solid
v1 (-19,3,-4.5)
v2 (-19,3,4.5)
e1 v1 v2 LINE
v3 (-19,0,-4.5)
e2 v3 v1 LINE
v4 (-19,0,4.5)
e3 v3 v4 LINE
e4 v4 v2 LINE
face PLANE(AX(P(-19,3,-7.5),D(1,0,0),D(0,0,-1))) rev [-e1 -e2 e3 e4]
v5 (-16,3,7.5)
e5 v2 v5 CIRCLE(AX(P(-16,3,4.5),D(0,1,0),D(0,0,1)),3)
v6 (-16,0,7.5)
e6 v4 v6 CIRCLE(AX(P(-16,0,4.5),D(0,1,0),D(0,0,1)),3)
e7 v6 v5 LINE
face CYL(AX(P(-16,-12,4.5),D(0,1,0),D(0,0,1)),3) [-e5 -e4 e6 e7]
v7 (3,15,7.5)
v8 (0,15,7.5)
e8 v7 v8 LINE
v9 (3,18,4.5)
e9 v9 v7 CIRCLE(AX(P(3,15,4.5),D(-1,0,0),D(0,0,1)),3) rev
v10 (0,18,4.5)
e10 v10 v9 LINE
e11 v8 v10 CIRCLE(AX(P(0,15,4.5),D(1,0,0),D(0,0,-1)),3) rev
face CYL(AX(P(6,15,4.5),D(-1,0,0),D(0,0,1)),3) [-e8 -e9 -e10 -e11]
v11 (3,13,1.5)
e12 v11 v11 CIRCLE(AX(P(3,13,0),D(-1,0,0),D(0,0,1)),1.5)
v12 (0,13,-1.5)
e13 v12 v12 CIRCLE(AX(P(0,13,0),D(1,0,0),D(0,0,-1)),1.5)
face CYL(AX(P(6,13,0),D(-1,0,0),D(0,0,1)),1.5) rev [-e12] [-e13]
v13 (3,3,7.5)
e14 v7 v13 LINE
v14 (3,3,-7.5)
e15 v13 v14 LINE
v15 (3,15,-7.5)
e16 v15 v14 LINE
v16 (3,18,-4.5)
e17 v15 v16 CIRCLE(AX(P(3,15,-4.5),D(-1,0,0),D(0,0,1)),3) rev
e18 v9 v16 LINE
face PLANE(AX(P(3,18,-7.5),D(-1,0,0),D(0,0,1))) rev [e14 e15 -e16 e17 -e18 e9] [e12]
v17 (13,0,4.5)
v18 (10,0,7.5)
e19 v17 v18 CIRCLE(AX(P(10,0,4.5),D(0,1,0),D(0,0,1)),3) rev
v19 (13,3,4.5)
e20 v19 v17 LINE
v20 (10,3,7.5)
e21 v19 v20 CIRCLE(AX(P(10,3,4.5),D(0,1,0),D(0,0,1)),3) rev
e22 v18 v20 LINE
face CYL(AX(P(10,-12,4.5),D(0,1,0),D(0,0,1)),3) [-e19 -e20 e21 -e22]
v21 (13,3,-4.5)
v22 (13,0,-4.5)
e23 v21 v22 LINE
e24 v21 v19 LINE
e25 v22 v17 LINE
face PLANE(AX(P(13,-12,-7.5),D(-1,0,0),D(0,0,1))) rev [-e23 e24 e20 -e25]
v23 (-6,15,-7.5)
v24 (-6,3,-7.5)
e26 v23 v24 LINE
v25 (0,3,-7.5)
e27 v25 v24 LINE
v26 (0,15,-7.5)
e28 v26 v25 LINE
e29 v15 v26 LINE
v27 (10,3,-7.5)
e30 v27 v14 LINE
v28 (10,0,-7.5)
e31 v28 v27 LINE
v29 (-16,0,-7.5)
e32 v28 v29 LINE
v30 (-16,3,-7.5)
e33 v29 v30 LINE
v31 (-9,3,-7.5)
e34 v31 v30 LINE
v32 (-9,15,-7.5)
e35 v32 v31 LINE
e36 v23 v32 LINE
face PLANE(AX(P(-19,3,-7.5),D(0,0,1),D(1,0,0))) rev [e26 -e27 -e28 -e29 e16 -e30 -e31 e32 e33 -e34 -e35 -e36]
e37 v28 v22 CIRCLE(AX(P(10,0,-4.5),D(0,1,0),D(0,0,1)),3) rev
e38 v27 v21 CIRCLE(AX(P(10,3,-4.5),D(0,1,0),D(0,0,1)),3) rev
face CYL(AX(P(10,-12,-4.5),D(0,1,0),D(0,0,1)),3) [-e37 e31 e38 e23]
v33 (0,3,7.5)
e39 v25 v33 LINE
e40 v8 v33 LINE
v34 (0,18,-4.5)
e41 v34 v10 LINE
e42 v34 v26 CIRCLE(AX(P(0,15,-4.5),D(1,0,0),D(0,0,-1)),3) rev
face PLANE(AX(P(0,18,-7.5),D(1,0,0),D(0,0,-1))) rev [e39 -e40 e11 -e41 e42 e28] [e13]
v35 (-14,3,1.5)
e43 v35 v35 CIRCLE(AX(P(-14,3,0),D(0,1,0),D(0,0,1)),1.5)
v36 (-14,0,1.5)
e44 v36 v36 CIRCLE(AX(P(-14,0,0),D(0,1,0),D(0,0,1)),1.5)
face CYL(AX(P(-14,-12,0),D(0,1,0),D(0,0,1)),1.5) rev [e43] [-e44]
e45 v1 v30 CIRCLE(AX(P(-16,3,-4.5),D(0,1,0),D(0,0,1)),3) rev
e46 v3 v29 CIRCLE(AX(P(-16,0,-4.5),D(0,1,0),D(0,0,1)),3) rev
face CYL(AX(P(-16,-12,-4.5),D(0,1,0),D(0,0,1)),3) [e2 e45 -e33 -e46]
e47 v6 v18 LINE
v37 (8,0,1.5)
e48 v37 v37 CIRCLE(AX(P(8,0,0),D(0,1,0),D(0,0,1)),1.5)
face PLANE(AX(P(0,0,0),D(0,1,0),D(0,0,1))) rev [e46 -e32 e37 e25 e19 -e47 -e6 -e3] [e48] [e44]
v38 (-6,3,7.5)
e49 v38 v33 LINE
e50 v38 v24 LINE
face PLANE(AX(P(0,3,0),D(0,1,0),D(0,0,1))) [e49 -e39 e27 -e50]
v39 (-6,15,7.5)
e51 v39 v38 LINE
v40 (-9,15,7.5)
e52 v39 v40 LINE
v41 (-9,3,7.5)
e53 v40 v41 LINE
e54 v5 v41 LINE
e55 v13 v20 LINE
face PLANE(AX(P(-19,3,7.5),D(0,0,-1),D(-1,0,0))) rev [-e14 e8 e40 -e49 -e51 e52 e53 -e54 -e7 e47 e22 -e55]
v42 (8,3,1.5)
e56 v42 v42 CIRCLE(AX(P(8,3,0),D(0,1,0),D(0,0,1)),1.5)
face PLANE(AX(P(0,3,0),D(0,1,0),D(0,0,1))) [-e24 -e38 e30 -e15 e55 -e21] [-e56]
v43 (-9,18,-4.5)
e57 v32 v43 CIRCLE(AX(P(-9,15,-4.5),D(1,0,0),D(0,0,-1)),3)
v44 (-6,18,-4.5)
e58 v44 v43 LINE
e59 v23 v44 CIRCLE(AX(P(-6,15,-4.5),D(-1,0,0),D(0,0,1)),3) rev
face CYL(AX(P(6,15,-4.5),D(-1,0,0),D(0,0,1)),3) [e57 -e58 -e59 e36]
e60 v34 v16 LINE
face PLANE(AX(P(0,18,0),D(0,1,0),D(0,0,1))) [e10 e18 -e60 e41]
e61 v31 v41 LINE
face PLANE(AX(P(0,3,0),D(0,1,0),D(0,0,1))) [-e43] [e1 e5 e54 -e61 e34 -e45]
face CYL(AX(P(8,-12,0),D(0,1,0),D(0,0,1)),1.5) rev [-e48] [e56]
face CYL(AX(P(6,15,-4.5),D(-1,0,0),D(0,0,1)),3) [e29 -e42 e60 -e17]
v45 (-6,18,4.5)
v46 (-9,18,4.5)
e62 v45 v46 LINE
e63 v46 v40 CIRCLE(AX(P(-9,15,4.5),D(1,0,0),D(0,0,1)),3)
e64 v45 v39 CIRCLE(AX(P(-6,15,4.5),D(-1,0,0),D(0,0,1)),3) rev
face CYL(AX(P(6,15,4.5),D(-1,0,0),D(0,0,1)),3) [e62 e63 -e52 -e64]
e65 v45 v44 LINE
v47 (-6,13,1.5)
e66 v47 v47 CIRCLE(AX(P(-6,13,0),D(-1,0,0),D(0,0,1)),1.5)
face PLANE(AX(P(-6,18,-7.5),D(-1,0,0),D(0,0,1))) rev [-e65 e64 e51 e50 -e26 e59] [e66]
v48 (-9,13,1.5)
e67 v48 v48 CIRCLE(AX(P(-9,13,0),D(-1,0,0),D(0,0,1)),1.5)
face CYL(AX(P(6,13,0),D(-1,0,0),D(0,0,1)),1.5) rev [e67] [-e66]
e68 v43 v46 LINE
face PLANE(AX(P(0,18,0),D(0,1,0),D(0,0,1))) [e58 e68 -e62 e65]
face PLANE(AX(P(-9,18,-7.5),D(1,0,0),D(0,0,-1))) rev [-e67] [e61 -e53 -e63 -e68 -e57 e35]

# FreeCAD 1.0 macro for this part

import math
import FreeCAD as App
import Part
import Sketcher

V = App.Vector
Q = App.Units.Quantity

doc = App.newDocument("Part")
body = doc.addObject("PartDesign::Body", "Body")

# Sketch on XZ plane
sketch1 = body.newObject("Sketcher::SketchObject", "Sketch")
sketch1.AttachmentSupport = (doc.getObject("XZ_Plane"), [""])
sketch1.MapMode = "FlatFace"
sketch1.addGeometry(Part.LineSegment(V(-19, -7.5, 0), V(-19, 7.5, 0)), False)
sketch1.addGeometry(Part.LineSegment(V(-19, 7.5, 0), V(19, 7.5, 0)), False)
sketch1.addGeometry(Part.LineSegment(V(19, 7.5, 0), V(19, -7.5, 0)), False)
sketch1.addGeometry(Part.LineSegment(V(19, -7.5, 0), V(-19, -7.5, 0)), False)
sketch1.addConstraint(Sketcher.Constraint("Coincident", 0, 2, 1, 1))
sketch1.addConstraint(Sketcher.Constraint("Coincident", 1, 2, 2, 1))
sketch1.addConstraint(Sketcher.Constraint("Coincident", 2, 2, 3, 1))
sketch1.addConstraint(Sketcher.Constraint("Coincident", 3, 2, 0, 1))
sketch1.addConstraint(Sketcher.Constraint("Vertical", 0))
sketch1.addConstraint(Sketcher.Constraint("Horizontal", 1))
sketch1.addConstraint(Sketcher.Constraint("Vertical", 2))
sketch1.addConstraint(Sketcher.Constraint("Horizontal", 3))
sketch1.addConstraint(Sketcher.Constraint("Symmetric", 0, 2, 2, 2, -1, 1))
sketch1.addConstraint(Sketcher.Constraint("DistanceX", 1, 1, 1, 2, Q("38 mm")))
sketch1.addConstraint(Sketcher.Constraint("DistanceY", 0, 1, 0, 2, Q("15 mm")))
pad1 = body.newObject("PartDesign::Pad", "Pad")
pad1.Profile = sketch1
pad1.Length = 3
pad1.Reversed = True

# Sketch on XZ plane
sketch2 = body.newObject("Sketcher::SketchObject", "Sketch001")
sketch2.AttachmentSupport = (doc.getObject("XZ_Plane"), [""])
sketch2.MapMode = "FlatFace"
sketch2.AttachmentOffset = App.Placement(V(0, 0, -3), App.Rotation())
sketch2.addGeometry(Part.LineSegment(V(-9, -7.5, 0), V(-9, 7.5, 0)), False)
sketch2.addGeometry(Part.LineSegment(V(-9, 7.5, 0), V(-6, 7.5, 0)), False)
sketch2.addGeometry(Part.LineSegment(V(-6, 7.5, 0), V(-6, -7.5, 0)), False)
sketch2.addGeometry(Part.LineSegment(V(-6, -7.5, 0), V(-9, -7.5, 0)), False)
sketch2.addGeometry(Part.LineSegment(V(0, -7.5, 0), V(0, 7.5, 0)), False)
sketch2.addGeometry(Part.LineSegment(V(0, 7.5, 0), V(3, 7.5, 0)), False)
sketch2.addGeometry(Part.LineSegment(V(3, 7.5, 0), V(3, -7.5, 0)), False)
sketch2.addGeometry(Part.LineSegment(V(3, -7.5, 0), V(0, -7.5, 0)), False)
sketch2.addConstraint(Sketcher.Constraint("Coincident", 0, 2, 1, 1))
sketch2.addConstraint(Sketcher.Constraint("Coincident", 1, 2, 2, 1))
sketch2.addConstraint(Sketcher.Constraint("Coincident", 2, 2, 3, 1))
sketch2.addConstraint(Sketcher.Constraint("Coincident", 3, 2, 0, 1))
sketch2.addConstraint(Sketcher.Constraint("Coincident", 4, 2, 5, 1))
sketch2.addConstraint(Sketcher.Constraint("Coincident", 5, 2, 6, 1))
sketch2.addConstraint(Sketcher.Constraint("Coincident", 6, 2, 7, 1))
sketch2.addConstraint(Sketcher.Constraint("Coincident", 7, 2, 4, 1))
sketch2.addConstraint(Sketcher.Constraint("Vertical", 0))
sketch2.addConstraint(Sketcher.Constraint("Horizontal", 1))
sketch2.addConstraint(Sketcher.Constraint("Vertical", 2))
sketch2.addConstraint(Sketcher.Constraint("Horizontal", 3))
sketch2.addConstraint(Sketcher.Constraint("Vertical", 4))
sketch2.addConstraint(Sketcher.Constraint("Horizontal", 5))
sketch2.addConstraint(Sketcher.Constraint("Vertical", 6))
sketch2.addConstraint(Sketcher.Constraint("Horizontal", 7))
sketch2.addConstraint(Sketcher.Constraint("Symmetric", 4, 2, 7, 2, -1, 1))
sketch2.addConstraint(Sketcher.Constraint("Horizontal", 1, 2, 4, 2))
sketch2.addConstraint(Sketcher.Constraint("Horizontal", 3, 2, 6, 2))
sketch2.addConstraint(Sketcher.Constraint("Equal", 3, 5))
sketch2.addConstraint(Sketcher.Constraint("DistanceX", 1, 1, 1, 2, Q("3 mm")))
sketch2.addConstraint(Sketcher.Constraint("DistanceY", 0, 1, 0, 2, Q("15 mm")))
sketch2.addConstraint(Sketcher.Constraint("DistanceX", 0, 2, -1, 1, Q("9 mm")))
pad2 = body.newObject("PartDesign::Pad", "Pad001")
pad2.Profile = sketch2
pad2.Length = 15
pad2.Reversed = True

# Sketch on XZ plane
sketch3 = body.newObject("Sketcher::SketchObject", "Sketch002")
sketch3.AttachmentSupport = (doc.getObject("XZ_Plane"), [""])
sketch3.MapMode = "FlatFace"
sketch3.AttachmentOffset = App.Placement(V(0, 0, -3), App.Rotation())
sketch3.addGeometry(Part.LineSegment(V(13, -7.5, 0), V(13, 7.5, 0)), False)
sketch3.addGeometry(Part.LineSegment(V(13, 7.5, 0), V(19, 7.5, 0)), False)
sketch3.addGeometry(Part.LineSegment(V(19, 7.5, 0), V(19, -7.5, 0)), False)
sketch3.addGeometry(Part.LineSegment(V(19, -7.5, 0), V(13, -7.5, 0)), False)
sketch3.addConstraint(Sketcher.Constraint("Coincident", 0, 2, 1, 1))
sketch3.addConstraint(Sketcher.Constraint("Coincident", 1, 2, 2, 1))
sketch3.addConstraint(Sketcher.Constraint("Coincident", 2, 2, 3, 1))
sketch3.addConstraint(Sketcher.Constraint("Coincident", 3, 2, 0, 1))
sketch3.addConstraint(Sketcher.Constraint("Vertical", 0))
sketch3.addConstraint(Sketcher.Constraint("Horizontal", 1))
sketch3.addConstraint(Sketcher.Constraint("Vertical", 2))
sketch3.addConstraint(Sketcher.Constraint("Horizontal", 3))
sketch3.addConstraint(Sketcher.Constraint("DistanceX", 1, 1, 1, 2, Q("6 mm")))
sketch3.addConstraint(Sketcher.Constraint("DistanceY", 0, 1, 0, 2, Q("15 mm")))
sketch3.addConstraint(Sketcher.Constraint("DistanceX", -1, 1, 0, 2, Q("13 mm")))
sketch3.addConstraint(Sketcher.Constraint("DistanceY", -1, 1, 0, 2, Q("7.5 mm")))
pocket1 = body.newObject("PartDesign::Pocket", "Pocket")
pocket1.Profile = sketch3
pocket1.Length = 15
pocket1.Reversed = True

# Sketch on XZ plane
sketch4 = body.newObject("Sketcher::SketchObject", "Sketch003")
sketch4.AttachmentSupport = (doc.getObject("XZ_Plane"), [""])
sketch4.MapMode = "FlatFace"
sketch4.AttachmentOffset = App.Placement(V(0, 0, -3), App.Rotation())
sketch4.addGeometry(Part.LineSegment(V(-19, -7.5, 0), V(-19, -4.5, 0)), False)
sketch4.addGeometry(Part.ArcOfCircle(Part.Circle(V(-16, -4.5, 0), V(0, 0, 1), 3), math.radians(180), math.radians(270)), False)
sketch4.addGeometry(Part.LineSegment(V(-16, -7.5, 0), V(-19, -7.5, 0)), False)
sketch4.addGeometry(Part.ArcOfCircle(Part.Circle(V(-16, 4.5, 0), V(0, 0, 1), 3), math.radians(90), math.radians(180)), False)
sketch4.addGeometry(Part.LineSegment(V(-19, 4.5, 0), V(-19, 7.5, 0)), False)
sketch4.addGeometry(Part.LineSegment(V(-19, 7.5, 0), V(-16, 7.5, 0)), False)
sketch4.addGeometry(Part.LineSegment(V(13, 7.5, 0), V(13, 4.5, 0)), False)
sketch4.addGeometry(Part.ArcOfCircle(Part.Circle(V(10, 4.5, 0), V(0, 0, 1), 3), math.radians(0), math.radians(90)), False)
sketch4.addGeometry(Part.LineSegment(V(10, 7.5, 0), V(13, 7.5, 0)), False)
sketch4.addGeometry(Part.LineSegment(V(13, -7.5, 0), V(10, -7.5, 0)), False)
sketch4.addGeometry(Part.ArcOfCircle(Part.Circle(V(10, -4.5, 0), V(0, 0, 1), 3), math.radians(-90), math.radians(0)), False)
sketch4.addGeometry(Part.LineSegment(V(13, -4.5, 0), V(13, -7.5, 0)), False)
sketch4.addConstraint(Sketcher.Constraint("Tangent", 0, 2, 1, 1))
sketch4.addConstraint(Sketcher.Constraint("Tangent", 1, 2, 2, 1))
sketch4.addConstraint(Sketcher.Constraint("Coincident", 2, 2, 0, 1))
sketch4.addConstraint(Sketcher.Constraint("Tangent", 3, 2, 4, 1))
sketch4.addConstraint(Sketcher.Constraint("Coincident", 4, 2, 5, 1))
sketch4.addConstraint(Sketcher.Constraint("Tangent", 5, 2, 3, 1))
sketch4.addConstraint(Sketcher.Constraint("Tangent", 6, 2, 7, 1))
sketch4.addConstraint(Sketcher.Constraint("Tangent", 7, 2, 8, 1))
sketch4.addConstraint(Sketcher.Constraint("Coincident", 8, 2, 6, 1))
sketch4.addConstraint(Sketcher.Constraint("Tangent", 9, 2, 10, 1))
sketch4.addConstraint(Sketcher.Constraint("Tangent", 10, 2, 11, 1))
sketch4.addConstraint(Sketcher.Constraint("Coincident", 11, 2, 9, 1))
sketch4.addConstraint(Sketcher.Constraint("Vertical", 0))
sketch4.addConstraint(Sketcher.Constraint("Horizontal", 2))
sketch4.addConstraint(Sketcher.Constraint("Vertical", 4))
sketch4.addConstraint(Sketcher.Constraint("Horizontal", 5))
sketch4.addConstraint(Sketcher.Constraint("Vertical", 6))
sketch4.addConstraint(Sketcher.Constraint("Horizontal", 8))
sketch4.addConstraint(Sketcher.Constraint("Horizontal", 9))
sketch4.addConstraint(Sketcher.Constraint("Vertical", 11))
sketch4.addConstraint(Sketcher.Constraint("Equal", 1, 3))
sketch4.addConstraint(Sketcher.Constraint("Equal", 3, 7))
sketch4.addConstraint(Sketcher.Constraint("Equal", 7, 10))
sketch4.addConstraint(Sketcher.Constraint("Symmetric", 1, 3, 3, 3, -1))
sketch4.addConstraint(Sketcher.Constraint("Symmetric", 7, 3, 10, 3, -1))
sketch4.addConstraint(Sketcher.Constraint("Horizontal", 3, 3, 7, 3))
sketch4.addConstraint(Sketcher.Constraint("Radius", 1, Q("3 mm")))
sketch4.addConstraint(Sketcher.Constraint("DistanceX", 1, 3, -1, 1, Q("16 mm")))
sketch4.addConstraint(Sketcher.Constraint("DistanceX", -1, 1, 7, 3, Q("10 mm")))
sketch4.addConstraint(Sketcher.Constraint("DistanceY", 1, 3, 3, 3, Q("9 mm")))
pocket2 = body.newObject("PartDesign::Pocket", "Pocket001")
pocket2.Profile = sketch4
pocket2.Length = 15
pocket2.Reversed = True

# Sketch on YZ plane
sketch5 = body.newObject("Sketcher::SketchObject", "Sketch004")
sketch5.AttachmentSupport = (doc.getObject("YZ_Plane"), [""])
sketch5.MapMode = "FlatFace"
sketch5.AttachmentOffset = App.Placement(V(0, 0, -9), App.Rotation())
sketch5.addGeometry(Part.LineSegment(V(18, -4.5, 0), V(18, -7.5, 0)), False)
sketch5.addGeometry(Part.LineSegment(V(18, -7.5, 0), V(15, -7.5, 0)), False)
sketch5.addGeometry(Part.ArcOfCircle(Part.Circle(V(15, -4.5, 0), V(0, 0, 1), 3), math.radians(-90), math.radians(0)), False)
sketch5.addGeometry(Part.LineSegment(V(18, 7.5, 0), V(18, 4.5, 0)), False)
sketch5.addGeometry(Part.ArcOfCircle(Part.Circle(V(15, 4.5, 0), V(0, 0, 1), 3), math.radians(0), math.radians(90)), False)
sketch5.addGeometry(Part.LineSegment(V(15, 7.5, 0), V(18, 7.5, 0)), False)
sketch5.addConstraint(Sketcher.Constraint("Coincident", 0, 2, 1, 1))
sketch5.addConstraint(Sketcher.Constraint("Tangent", 1, 2, 2, 1))
sketch5.addConstraint(Sketcher.Constraint("Tangent", 2, 2, 0, 1))
sketch5.addConstraint(Sketcher.Constraint("Tangent", 3, 2, 4, 1))
sketch5.addConstraint(Sketcher.Constraint("Tangent", 4, 2, 5, 1))
sketch5.addConstraint(Sketcher.Constraint("Coincident", 5, 2, 3, 1))
sketch5.addConstraint(Sketcher.Constraint("Vertical", 0))
sketch5.addConstraint(Sketcher.Constraint("Horizontal", 1))
sketch5.addConstraint(Sketcher.Constraint("Vertical", 3))
sketch5.addConstraint(Sketcher.Constraint("Horizontal", 5))
sketch5.addConstraint(Sketcher.Constraint("Equal", 2, 4))
sketch5.addConstraint(Sketcher.Constraint("Symmetric", 2, 3, 4, 3, -1))
sketch5.addConstraint(Sketcher.Constraint("Radius", 2, Q("3 mm")))
sketch5.addConstraint(Sketcher.Constraint("DistanceX", -1, 1, 2, 3, Q("15 mm")))
sketch5.addConstraint(Sketcher.Constraint("DistanceY", 2, 3, 4, 3, Q("9 mm")))
pocket3 = body.newObject("PartDesign::Pocket", "Pocket002")
pocket3.Profile = sketch5
pocket3.Length = 15
pocket3.Reversed = True

# Sketch on YZ plane
sketch6 = body.newObject("Sketcher::SketchObject", "Sketch005")
sketch6.AttachmentSupport = (doc.getObject("YZ_Plane"), [""])
sketch6.MapMode = "FlatFace"
sketch6.AttachmentOffset = App.Placement(V(0, 0, -9), App.Rotation())
sketch6.addGeometry(Part.Circle(V(13, 0, 0), V(0, 0, 1), 1.5), False)
sketch6.addConstraint(Sketcher.Constraint("PointOnObject", 0, 3, -1))
sketch6.addConstraint(Sketcher.Constraint("Diameter", 0, Q("3 mm")))
sketch6.addConstraint(Sketcher.Constraint("DistanceX", -1, 1, 0, 3, Q("13 mm")))
pocket4 = body.newObject("PartDesign::Pocket", "Pocket003")
pocket4.Profile = sketch6
pocket4.Length = 15
pocket4.Reversed = True

# Sketch on XZ plane
sketch7 = body.newObject("Sketcher::SketchObject", "Sketch006")
sketch7.AttachmentSupport = (doc.getObject("XZ_Plane"), [""])
sketch7.MapMode = "FlatFace"
sketch7.AttachmentOffset = App.Placement(V(0, 0, -3), App.Rotation())
sketch7.addGeometry(Part.Circle(V(-14, 0, 0), V(0, 0, 1), 1.5), False)
sketch7.addGeometry(Part.Circle(V(8, 0, 0), V(0, 0, 1), 1.5), False)
sketch7.addConstraint(Sketcher.Constraint("Equal", 0, 1))
sketch7.addConstraint(Sketcher.Constraint("PointOnObject", 0, 3, -1))
sketch7.addConstraint(Sketcher.Constraint("PointOnObject", 1, 3, -1))
sketch7.addConstraint(Sketcher.Constraint("Diameter", 0, Q("3 mm")))
sketch7.addConstraint(Sketcher.Constraint("DistanceX", 0, 3, -1, 1, Q("14 mm")))
sketch7.addConstraint(Sketcher.Constraint("DistanceX", -1, 1, 1, 3, Q("8 mm")))
pocket5 = body.newObject("PartDesign::Pocket", "Pocket004")
pocket5.Profile = sketch7
pocket5.Length = 15
pocket5.Reversed = True

doc.recompute()
